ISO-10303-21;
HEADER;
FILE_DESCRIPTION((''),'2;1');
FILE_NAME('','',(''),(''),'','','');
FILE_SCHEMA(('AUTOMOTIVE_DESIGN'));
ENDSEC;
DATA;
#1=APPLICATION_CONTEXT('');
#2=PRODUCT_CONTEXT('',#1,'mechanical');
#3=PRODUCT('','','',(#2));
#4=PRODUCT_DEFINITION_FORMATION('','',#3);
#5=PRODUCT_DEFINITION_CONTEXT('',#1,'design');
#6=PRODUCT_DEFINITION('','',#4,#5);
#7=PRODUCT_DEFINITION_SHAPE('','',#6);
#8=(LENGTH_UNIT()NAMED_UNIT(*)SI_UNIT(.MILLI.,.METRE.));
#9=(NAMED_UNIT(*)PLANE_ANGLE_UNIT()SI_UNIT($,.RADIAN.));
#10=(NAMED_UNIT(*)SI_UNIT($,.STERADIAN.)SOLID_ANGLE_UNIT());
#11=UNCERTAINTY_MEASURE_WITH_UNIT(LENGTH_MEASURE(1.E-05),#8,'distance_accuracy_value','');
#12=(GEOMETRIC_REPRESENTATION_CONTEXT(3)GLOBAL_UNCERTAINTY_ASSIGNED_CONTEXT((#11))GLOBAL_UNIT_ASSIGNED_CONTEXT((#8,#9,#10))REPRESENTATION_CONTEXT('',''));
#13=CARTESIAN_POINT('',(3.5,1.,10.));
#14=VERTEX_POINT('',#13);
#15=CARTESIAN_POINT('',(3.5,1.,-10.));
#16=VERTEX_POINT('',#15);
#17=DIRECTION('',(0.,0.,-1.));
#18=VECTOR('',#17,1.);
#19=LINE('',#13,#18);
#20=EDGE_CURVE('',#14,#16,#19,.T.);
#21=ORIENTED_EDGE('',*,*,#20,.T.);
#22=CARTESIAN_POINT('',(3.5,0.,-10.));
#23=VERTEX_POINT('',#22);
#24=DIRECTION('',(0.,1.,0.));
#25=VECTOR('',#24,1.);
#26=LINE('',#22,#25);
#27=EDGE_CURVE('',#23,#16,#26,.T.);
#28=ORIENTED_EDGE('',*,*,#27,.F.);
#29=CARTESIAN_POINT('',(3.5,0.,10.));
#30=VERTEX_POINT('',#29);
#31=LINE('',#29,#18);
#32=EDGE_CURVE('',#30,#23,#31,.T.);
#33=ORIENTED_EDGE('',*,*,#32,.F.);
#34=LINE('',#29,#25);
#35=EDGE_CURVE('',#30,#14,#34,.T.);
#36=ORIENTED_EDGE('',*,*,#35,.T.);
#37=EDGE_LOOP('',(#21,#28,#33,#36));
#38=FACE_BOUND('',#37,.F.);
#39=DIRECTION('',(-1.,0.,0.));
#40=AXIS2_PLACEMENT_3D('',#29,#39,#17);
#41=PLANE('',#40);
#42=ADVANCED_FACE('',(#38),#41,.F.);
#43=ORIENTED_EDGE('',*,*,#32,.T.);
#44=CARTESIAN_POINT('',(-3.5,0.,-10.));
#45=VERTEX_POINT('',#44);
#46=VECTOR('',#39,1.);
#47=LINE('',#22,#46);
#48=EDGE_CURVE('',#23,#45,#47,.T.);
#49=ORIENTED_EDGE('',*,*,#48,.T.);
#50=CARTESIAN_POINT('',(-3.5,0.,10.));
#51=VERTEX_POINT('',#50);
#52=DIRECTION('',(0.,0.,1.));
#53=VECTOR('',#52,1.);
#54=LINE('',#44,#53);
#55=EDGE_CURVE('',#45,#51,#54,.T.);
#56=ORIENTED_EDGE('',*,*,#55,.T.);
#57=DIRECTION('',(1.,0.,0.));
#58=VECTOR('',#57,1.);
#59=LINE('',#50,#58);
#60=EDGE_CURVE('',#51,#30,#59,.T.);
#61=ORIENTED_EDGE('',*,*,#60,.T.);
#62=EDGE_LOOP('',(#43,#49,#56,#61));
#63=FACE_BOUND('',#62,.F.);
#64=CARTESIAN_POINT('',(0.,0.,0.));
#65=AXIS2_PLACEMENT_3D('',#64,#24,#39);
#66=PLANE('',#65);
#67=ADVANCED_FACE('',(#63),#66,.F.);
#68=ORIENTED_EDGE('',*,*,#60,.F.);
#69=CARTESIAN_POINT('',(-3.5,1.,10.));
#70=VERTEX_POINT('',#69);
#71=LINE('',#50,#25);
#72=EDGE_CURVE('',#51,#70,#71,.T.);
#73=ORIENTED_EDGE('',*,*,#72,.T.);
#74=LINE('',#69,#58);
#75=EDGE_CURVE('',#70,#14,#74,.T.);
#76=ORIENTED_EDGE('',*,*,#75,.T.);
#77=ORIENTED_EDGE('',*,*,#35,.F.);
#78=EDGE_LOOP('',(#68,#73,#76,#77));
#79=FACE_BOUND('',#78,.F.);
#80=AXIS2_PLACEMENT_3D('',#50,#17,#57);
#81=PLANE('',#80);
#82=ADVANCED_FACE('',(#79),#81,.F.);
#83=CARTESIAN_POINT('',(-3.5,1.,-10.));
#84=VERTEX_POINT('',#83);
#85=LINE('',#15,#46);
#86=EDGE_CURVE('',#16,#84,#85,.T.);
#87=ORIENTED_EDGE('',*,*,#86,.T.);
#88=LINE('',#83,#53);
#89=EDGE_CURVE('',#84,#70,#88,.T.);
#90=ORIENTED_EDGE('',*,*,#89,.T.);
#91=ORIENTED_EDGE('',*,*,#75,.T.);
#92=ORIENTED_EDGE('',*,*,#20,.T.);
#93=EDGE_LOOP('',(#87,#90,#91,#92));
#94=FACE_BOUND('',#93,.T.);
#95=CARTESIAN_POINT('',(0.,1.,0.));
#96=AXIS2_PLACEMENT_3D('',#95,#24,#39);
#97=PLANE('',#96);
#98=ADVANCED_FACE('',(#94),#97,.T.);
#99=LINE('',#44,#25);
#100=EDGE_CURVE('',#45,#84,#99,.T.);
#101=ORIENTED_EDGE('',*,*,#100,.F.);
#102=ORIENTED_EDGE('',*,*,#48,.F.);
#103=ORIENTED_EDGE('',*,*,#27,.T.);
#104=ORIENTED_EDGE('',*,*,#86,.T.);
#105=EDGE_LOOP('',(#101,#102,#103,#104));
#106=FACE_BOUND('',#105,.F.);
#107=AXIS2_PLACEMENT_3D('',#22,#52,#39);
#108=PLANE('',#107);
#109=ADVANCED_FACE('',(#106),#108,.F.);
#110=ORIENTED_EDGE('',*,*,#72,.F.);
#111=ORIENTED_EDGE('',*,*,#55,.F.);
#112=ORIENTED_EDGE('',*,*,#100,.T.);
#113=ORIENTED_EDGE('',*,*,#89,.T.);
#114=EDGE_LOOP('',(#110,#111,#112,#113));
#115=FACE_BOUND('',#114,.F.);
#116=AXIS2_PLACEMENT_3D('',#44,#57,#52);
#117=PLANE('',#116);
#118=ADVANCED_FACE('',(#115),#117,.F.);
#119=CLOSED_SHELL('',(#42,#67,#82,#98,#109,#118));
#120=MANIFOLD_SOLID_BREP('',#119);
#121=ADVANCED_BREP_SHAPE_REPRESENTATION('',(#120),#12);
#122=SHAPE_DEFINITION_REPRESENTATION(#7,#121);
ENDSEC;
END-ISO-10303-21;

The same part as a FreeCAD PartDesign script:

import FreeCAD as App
import Part
import Sketcher
Q = App.Units.Quantity

doc = App.newDocument("Part")
body = doc.addObject("PartDesign::Body", "Body")

# Sketch on XZ plane
sketch1 = body.newObject("Sketcher::SketchObject", "Sketch")
sketch1.AttachmentSupport = (doc.getObject("XZ_Plane"), [""])
sketch1.MapMode = "FlatFace"
sketch1.addGeometry([
    Part.LineSegment(App.Vector(-4, -10, 0), App.Vector(-4, 10, 0)),
    Part.LineSegment(App.Vector(-4, 10, 0), App.Vector(4, 10, 0)),
    Part.LineSegment(App.Vector(4, 10, 0), App.Vector(4, -10, 0)),
    Part.LineSegment(App.Vector(4, -10, 0), App.Vector(-4, -10, 0)),
], False)
sketch1.addConstraint([
    Sketcher.Constraint("Coincident", 0, 2, 1, 1),
    Sketcher.Constraint("Coincident", 1, 2, 2, 1),
    Sketcher.Constraint("Coincident", 2, 2, 3, 1),
    Sketcher.Constraint("Coincident", 3, 2, 0, 1),
    Sketcher.Constraint("Vertical", 0),
    Sketcher.Constraint("Horizontal", 1),
    Sketcher.Constraint("Vertical", 2),
    Sketcher.Constraint("Horizontal", 3),
    Sketcher.Constraint("Symmetric", 0, 2, 2, 2, -1, 1),
    Sketcher.Constraint("DistanceX", 1, 1, 1, 2, Q("7 mm")),
    Sketcher.Constraint("DistanceY", 0, 1, 0, 2, Q("20 mm")),
])
pad1 = body.newObject("PartDesign::Pad", "Pad")
pad1.Profile = sketch1
pad1.Length = 1
pad1.Reversed = True

doc.recompute()
